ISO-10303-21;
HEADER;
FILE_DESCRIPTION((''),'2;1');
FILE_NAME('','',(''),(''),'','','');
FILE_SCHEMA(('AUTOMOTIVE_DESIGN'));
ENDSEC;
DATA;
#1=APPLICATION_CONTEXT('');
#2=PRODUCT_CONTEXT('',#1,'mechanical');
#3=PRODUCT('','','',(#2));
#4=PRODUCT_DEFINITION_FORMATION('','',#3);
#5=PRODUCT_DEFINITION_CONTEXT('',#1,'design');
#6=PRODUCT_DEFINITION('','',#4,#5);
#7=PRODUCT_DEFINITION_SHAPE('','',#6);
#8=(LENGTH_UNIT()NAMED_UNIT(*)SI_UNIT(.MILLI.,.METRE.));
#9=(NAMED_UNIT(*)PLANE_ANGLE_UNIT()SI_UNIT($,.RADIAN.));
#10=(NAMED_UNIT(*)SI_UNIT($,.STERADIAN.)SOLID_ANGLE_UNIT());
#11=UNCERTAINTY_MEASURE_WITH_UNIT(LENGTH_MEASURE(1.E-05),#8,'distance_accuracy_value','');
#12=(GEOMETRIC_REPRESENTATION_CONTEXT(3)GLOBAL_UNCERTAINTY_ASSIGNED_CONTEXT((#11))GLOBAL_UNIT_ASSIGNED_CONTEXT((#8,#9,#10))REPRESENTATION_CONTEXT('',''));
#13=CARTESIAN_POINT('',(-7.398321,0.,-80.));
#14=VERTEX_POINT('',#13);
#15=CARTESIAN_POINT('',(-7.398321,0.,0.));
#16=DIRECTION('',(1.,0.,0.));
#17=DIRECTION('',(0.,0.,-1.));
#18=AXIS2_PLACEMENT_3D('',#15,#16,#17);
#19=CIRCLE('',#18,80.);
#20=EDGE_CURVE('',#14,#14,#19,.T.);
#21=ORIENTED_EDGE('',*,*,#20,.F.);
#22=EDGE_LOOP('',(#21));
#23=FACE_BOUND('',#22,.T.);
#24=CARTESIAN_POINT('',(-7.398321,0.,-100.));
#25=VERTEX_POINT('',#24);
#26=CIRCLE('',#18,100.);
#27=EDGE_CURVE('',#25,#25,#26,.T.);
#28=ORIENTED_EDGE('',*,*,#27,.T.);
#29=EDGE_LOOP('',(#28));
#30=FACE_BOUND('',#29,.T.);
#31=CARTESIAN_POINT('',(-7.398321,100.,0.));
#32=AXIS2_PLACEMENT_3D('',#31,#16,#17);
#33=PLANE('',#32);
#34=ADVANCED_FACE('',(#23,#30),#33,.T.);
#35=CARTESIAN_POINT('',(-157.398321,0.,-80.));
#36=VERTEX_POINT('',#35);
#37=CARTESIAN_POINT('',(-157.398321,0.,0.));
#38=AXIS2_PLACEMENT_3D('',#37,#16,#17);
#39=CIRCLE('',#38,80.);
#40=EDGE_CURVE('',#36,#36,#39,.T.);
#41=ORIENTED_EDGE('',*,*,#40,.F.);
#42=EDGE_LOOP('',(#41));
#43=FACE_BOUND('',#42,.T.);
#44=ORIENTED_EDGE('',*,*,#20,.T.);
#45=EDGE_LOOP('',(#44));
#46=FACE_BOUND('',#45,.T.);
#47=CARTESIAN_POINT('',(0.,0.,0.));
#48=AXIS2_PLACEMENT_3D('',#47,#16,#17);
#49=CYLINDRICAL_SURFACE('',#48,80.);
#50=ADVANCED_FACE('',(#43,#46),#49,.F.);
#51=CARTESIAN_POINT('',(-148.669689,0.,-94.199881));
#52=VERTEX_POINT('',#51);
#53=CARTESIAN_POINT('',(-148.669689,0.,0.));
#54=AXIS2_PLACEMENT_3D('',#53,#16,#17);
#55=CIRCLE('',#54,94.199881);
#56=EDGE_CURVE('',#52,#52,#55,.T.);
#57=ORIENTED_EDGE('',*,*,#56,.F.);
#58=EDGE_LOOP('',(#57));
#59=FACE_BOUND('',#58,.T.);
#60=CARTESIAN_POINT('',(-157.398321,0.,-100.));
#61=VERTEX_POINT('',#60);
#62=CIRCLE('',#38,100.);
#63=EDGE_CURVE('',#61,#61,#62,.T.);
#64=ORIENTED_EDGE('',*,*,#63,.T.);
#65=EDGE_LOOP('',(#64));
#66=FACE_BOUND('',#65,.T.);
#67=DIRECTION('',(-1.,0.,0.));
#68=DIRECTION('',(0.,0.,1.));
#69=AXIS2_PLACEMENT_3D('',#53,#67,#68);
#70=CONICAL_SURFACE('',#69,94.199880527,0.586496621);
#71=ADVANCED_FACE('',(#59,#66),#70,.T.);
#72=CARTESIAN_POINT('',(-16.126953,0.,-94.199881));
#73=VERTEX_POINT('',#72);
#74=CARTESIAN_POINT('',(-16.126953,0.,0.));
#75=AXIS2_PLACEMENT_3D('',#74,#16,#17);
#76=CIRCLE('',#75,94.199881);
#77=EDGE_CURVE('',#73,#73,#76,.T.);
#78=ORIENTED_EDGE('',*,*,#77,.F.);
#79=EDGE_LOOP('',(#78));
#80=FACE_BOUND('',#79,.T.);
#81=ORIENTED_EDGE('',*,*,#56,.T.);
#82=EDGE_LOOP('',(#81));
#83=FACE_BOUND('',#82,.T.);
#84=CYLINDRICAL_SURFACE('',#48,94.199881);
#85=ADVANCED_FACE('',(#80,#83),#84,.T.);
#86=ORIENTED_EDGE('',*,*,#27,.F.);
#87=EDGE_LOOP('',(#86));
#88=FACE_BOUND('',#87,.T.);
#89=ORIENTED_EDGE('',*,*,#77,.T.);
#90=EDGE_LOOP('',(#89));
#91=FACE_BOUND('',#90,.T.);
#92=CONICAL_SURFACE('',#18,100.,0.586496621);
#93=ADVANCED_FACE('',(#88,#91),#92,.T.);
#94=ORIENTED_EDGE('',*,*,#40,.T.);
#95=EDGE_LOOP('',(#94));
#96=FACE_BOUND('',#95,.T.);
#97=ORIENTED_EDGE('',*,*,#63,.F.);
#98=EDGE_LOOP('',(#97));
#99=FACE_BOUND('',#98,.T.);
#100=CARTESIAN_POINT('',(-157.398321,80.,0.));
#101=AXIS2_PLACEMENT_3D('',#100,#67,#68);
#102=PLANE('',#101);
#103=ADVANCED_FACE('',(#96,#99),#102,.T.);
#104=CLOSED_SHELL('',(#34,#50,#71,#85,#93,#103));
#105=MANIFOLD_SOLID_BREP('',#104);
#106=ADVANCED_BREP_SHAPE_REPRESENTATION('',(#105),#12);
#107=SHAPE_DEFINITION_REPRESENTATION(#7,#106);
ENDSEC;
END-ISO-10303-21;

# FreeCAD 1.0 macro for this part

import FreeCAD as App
import Part
import Sketcher

V = App.Vector
Q = App.Units.Quantity


def add_polygon(sketch, points):
    """Adds a closed chain of lines whose ends are joined by coincident constraints."""
    first, n = sketch.GeometryCount, len(points)
    for a, b in zip(points, points[1:] + points[:1]):
        sketch.addGeometry(Part.LineSegment(App.Vector(*a, 0), App.Vector(*b, 0)), False)
    for i in range(n):
        sketch.addConstraint(Sketcher.Constraint("Coincident", first + i, 2, first + (i + 1) % n, 1))

doc = App.newDocument("Part")
body = doc.addObject("PartDesign::Body", "Body")

sketch1 = body.newObject("Sketcher::SketchObject", "Sketch")
sketch1.AttachmentSupport = (doc.getObject("XY_Plane"), [""])
sketch1.MapMode = "FlatFace"
add_polygon(sketch1, [(-157.398321, 80), (-7.398321, 80), (-7.398321, 100), (-16.126953, 94.199881), (-148.669689, 94.199881), (-157.398321, 100)])
sketch1.addConstraint(Sketcher.Constraint("Horizontal", 0))
sketch1.addConstraint(Sketcher.Constraint("Vertical", 1))
sketch1.addConstraint(Sketcher.Constraint("Horizontal", 3))
sketch1.addConstraint(Sketcher.Constraint("Vertical", 5))
sketch1.addConstraint(Sketcher.Constraint("Horizontal", 1, 2, 4, 2))
sketch1.addConstraint(Sketcher.Constraint("Equal", 2, 4))
sketch1.addConstraint(Sketcher.Constraint("DistanceX", 0, 1, 0, 2, Q("150 mm")))
sketch1.addConstraint(Sketcher.Constraint("DistanceY", 1, 1, 1, 2, Q("20 mm")))
sketch1.addConstraint(Sketcher.Constraint("DistanceY", -1, 1, 0, 2, Q("80 mm")))
sketch1.addConstraint(Sketcher.Constraint("Distance", 2, Q("10.48 mm")))
sketch1.addConstraint(Sketcher.Constraint("DistanceX", 3, 2, 3, 1, Q("132.542736 mm")))
sketch1.addConstraint(Sketcher.Constraint("DistanceX", 0, 2, -1, 1, Q("7.398321 mm")))
revolution = body.newObject("PartDesign::Revolution", "Revolution")
revolution.Profile = sketch1
revolution.ReferenceAxis = (sketch1, ["H_Axis"])
revolution.Angle = 360

doc.recompute()
